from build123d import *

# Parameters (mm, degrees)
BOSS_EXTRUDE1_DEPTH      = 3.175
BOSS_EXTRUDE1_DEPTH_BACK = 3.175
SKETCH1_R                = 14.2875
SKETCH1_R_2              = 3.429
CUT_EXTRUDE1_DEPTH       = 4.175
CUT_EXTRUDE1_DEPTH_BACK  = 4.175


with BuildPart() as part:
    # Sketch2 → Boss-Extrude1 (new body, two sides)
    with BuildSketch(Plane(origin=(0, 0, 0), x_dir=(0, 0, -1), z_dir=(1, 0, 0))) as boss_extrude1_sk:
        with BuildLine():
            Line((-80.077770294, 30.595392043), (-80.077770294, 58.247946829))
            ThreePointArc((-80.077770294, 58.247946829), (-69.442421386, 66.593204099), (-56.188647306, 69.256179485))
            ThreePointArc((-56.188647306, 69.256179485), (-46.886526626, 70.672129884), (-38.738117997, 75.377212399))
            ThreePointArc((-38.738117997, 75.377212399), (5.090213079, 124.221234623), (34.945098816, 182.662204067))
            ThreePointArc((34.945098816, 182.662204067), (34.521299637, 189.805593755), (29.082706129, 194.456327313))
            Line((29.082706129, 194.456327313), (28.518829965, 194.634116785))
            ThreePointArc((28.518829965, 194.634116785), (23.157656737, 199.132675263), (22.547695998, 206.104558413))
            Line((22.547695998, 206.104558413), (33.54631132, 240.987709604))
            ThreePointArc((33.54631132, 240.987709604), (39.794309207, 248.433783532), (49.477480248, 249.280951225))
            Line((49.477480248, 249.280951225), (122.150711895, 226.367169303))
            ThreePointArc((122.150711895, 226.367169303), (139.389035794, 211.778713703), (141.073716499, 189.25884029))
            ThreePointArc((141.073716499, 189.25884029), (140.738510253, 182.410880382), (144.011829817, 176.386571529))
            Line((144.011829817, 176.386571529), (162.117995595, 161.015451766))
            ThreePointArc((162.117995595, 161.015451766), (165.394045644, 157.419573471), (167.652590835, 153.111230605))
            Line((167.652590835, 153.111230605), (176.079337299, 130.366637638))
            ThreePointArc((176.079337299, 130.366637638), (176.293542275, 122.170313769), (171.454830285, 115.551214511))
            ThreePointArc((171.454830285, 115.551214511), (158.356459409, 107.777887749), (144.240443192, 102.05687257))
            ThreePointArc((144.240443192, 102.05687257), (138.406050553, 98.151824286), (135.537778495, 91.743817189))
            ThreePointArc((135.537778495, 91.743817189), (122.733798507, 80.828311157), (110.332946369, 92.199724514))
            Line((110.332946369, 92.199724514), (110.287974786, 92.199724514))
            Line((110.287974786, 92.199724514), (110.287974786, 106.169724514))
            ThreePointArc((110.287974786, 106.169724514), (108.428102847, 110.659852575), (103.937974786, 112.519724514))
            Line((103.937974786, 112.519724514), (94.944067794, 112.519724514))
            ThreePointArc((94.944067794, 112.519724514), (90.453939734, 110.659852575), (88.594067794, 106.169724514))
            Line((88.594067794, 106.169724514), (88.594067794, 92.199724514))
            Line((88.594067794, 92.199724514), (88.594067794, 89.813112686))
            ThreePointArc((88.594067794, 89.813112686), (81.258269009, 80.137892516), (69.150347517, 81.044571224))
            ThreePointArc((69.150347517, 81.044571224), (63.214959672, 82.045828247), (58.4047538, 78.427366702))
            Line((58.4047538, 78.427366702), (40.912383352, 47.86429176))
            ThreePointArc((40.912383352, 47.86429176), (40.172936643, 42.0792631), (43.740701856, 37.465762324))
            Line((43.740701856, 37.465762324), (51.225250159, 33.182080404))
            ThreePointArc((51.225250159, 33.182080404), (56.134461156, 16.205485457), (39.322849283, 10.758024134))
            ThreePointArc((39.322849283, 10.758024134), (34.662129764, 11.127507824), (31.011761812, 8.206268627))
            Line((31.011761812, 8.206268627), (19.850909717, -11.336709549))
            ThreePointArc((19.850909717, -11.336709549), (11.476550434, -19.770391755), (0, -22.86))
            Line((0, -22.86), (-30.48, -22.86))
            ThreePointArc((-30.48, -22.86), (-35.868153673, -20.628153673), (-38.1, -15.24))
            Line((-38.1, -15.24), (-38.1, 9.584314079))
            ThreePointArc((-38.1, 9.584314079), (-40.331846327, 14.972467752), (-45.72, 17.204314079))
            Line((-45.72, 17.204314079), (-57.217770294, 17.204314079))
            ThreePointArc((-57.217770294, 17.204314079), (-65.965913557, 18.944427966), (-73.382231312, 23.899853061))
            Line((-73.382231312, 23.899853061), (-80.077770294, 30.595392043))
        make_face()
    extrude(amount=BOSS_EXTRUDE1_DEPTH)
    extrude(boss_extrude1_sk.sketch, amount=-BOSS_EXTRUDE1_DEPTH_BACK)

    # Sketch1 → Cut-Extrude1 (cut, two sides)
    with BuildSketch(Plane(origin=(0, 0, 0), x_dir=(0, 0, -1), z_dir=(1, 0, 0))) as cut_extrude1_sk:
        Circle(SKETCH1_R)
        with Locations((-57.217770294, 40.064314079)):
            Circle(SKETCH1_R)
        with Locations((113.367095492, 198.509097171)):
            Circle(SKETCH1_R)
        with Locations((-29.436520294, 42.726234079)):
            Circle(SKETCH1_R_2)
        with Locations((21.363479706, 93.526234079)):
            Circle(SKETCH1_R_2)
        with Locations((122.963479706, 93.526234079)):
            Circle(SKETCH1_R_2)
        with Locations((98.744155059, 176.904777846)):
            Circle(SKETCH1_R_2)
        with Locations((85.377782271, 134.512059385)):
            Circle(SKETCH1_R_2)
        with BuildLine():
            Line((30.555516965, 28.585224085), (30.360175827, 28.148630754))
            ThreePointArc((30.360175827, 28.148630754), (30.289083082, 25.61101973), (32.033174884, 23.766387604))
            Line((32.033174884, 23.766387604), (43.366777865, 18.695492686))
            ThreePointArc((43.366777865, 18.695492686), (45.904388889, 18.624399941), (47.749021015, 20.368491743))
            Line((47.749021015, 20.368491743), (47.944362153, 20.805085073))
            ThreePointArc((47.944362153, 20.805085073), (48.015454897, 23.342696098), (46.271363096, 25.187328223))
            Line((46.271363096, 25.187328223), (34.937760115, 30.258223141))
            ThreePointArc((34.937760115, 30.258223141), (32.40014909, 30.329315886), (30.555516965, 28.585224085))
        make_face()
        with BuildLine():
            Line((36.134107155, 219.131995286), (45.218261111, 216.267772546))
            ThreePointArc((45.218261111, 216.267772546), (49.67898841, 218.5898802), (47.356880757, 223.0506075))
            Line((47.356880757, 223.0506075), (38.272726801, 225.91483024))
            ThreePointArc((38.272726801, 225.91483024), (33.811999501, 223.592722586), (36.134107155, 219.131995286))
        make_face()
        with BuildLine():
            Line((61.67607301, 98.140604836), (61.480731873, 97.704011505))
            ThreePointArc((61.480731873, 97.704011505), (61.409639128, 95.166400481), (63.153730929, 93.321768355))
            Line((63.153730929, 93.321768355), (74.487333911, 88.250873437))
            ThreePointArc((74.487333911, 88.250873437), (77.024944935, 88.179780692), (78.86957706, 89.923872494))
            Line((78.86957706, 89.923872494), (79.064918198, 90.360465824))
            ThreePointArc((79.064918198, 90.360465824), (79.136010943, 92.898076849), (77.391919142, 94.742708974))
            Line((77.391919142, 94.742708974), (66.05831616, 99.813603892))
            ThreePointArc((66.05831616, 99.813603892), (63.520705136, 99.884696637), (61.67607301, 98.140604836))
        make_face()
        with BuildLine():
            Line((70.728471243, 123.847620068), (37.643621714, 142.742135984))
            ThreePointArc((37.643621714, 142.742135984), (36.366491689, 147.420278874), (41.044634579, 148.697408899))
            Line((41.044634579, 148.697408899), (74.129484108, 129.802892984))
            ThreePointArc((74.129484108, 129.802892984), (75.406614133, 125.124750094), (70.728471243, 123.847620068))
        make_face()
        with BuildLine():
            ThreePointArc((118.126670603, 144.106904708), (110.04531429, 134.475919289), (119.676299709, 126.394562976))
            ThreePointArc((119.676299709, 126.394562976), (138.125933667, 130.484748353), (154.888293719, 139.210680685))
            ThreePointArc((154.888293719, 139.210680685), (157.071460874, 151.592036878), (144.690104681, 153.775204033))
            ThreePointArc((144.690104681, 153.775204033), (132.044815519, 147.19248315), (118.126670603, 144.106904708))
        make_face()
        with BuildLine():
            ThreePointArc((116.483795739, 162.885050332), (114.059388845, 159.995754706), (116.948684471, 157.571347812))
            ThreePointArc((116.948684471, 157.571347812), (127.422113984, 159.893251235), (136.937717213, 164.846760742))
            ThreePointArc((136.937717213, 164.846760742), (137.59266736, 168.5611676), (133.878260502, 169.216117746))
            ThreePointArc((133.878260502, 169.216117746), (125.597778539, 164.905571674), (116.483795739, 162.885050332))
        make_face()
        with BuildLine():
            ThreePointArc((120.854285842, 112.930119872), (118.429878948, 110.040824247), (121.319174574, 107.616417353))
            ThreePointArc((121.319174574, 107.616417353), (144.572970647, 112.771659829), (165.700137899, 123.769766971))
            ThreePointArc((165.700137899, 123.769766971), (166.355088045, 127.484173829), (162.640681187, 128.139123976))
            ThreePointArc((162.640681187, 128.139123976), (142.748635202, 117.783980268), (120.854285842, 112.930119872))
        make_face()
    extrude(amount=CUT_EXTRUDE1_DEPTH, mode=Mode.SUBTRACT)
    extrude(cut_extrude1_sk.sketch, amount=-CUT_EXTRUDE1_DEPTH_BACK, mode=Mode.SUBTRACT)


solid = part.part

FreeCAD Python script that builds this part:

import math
import FreeCAD as App
import Part
import Sketcher
Q = App.Units.Quantity

doc = App.newDocument("Part")
params = doc.addObject("Spreadsheet::Sheet", "Params")
for row, (alias, value) in enumerate([
    ("sketch1_radius", "1 in"),
    ("sketch1_radius2", "0.9 in"),
    ("sketch1_radius3", "0.3 in"),
    ("sketch1_radius4", "0.3 in"),
    ("sketch1_radius5", "0.9 in"),
    ("pad1_length", "0.125 in"),
    ("pad1_length2", "0.125 in"),
    ("sketch2_diameter", "0.27 in"),
    ("sketch2_radius", "0.14 in"),
    ("sketch2_radius2", "0.35 in"),
    ("sketch2_radius3", "2.85 in"),
    ("sketch2_diameter2", "1.125 in"),
], start=1):
    params.set(f"A{row}", alias)
    params.set(f"B{row}", "=" + value)
    params.setAlias(f"B{row}", alias)

body = doc.addObject("PartDesign::Body", "Body")

# Sketch on YZ plane
sketch1 = body.newObject("Sketcher::SketchObject", "Sketch")
sketch1.AttachmentSupport = (doc.getObject("YZ_Plane"), [""])
sketch1.MapMode = "FlatFace"
sketch1.addGeometry([
    Part.LineSegment(App.Vector(58.247947, 80.07777, 0), App.Vector(30.595392, 80.07777, 0)),  # 0
    Part.LineSegment(App.Vector(30.595392, 80.07777, 0), App.Vector(23.899853, 73.382231, 0)),  # 1
    Part.ArcOfCircle(Part.Circle(App.Vector(40.064314, 57.21777, 0), App.Vector(0, 0, 1), 22.86), math.radians(135), math.radians(180)),  # 2
    Part.LineSegment(App.Vector(17.204314, 57.21777, 0), App.Vector(17.204314, 45.72, 0)),  # 3
    Part.ArcOfCircle(Part.Circle(App.Vector(9.584314, 45.72, 0), App.Vector(0, 0, 1), 7.62), math.radians(-90), math.radians(0)),  # 4
    Part.LineSegment(App.Vector(9.584314, 38.1, 0), App.Vector(-15.24, 38.1, 0)),  # 5
    Part.ArcOfCircle(Part.Circle(App.Vector(-15.24, 30.48, 0), App.Vector(0, 0, 1), 7.62), math.radians(90), math.radians(180)),  # 6
    Part.LineSegment(App.Vector(-22.86, 30.48, 0), App.Vector(-22.86, 0, 0)),  # 7
    Part.ArcOfCircle(Part.Circle(App.Vector(0, 0, 0), App.Vector(0, 0, 1), 22.86), math.radians(180), math.radians(240.269628)),  # 8
    Part.LineSegment(App.Vector(-11.33671, -19.85091, 0), App.Vector(8.206269, -31.011762, 0)),  # 9
    Part.ArcOfCircle(Part.Circle(App.Vector(5.057183, -36.525903, 0), App.Vector(0, 0, 1), 6.35), math.radians(-26.133485), math.radians(60.269628)),  # 10
    Part.ArcOfCircle(Part.Circle(App.Vector(22.159707, -44.916741, 0), App.Vector(0, 0, 1), 12.7), math.radians(153.866515), math.radians(330.215909)),  # 11
    Part.LineSegment(App.Vector(33.18208, -51.22525, 0), App.Vector(37.465762, -43.740702, 0)),  # 12
    Part.ArcOfCircle(Part.Circle(App.Vector(44.079186, -47.525807, 0), App.Vector(0, 0, 1), 7.62), math.radians(60.215909), math.radians(150.215909)),  # 13
    Part.LineSegment(App.Vector(47.864292, -40.912383, 0), App.Vector(78.427367, -58.404754, 0)),  # 14
    Part.ArcOfCircle(Part.Circle(App.Vector(74.642261, -65.018178, 0), App.Vector(0, 0, 1), 7.62), math.radians(-32.838949), math.radians(60.215909)),  # 15
    Part.ArcOfCircle(Part.Circle(App.Vector(91.715088, -76.037297, 0), App.Vector(0, 0, 1), 12.7), math.radians(147.161051), math.radians(261.386876)),  # 16
    Part.LineSegment(App.Vector(89.813113, -88.594068, 0), App.Vector(106.169725, -88.594068, 0)),  # 17
    Part.ArcOfCircle(Part.Circle(App.Vector(106.169725, -94.944068, 0), App.Vector(0, 0, 1), 6.35), math.radians(0), math.radians(90)),  # 18
    Part.LineSegment(App.Vector(112.519725, -94.944068, 0), App.Vector(112.519725, -103.937975, 0)),  # 19
    Part.ArcOfCircle(Part.Circle(App.Vector(106.169725, -103.937975, 0), App.Vector(0, 0, 1), 6.35), math.radians(-90), math.radians(0)),  # 20
    Part.LineSegment(App.Vector(106.169725, -110.287975, 0), App.Vector(92.199725, -110.287975, 0)),  # 21
    Part.LineSegment(App.Vector(92.199725, -110.287975, 0), App.Vector(92.199725, -110.332946, 0)),  # 22
    Part.ArcOfCircle(Part.Circle(App.Vector(93.526234, -122.96348, 0), App.Vector(0, 0, 1), 12.7), math.radians(95.995455), math.radians(261.932028)),  # 23
    Part.ArcOfCircle(Part.Circle(App.Vector(89.9614, -148.112077, 0), App.Vector(0, 0, 1), 12.7), math.radians(17.749325), math.radians(81.932028)),  # 24
    Part.ArcOfCircle(Part.Circle(App.Vector(198.509097, -113.367096, 0), App.Vector(0, 0, 1), 101.272875), math.radians(-162.250675), math.radians(-145)),  # 25
    Part.ArcOfCircle(Part.Circle(App.Vector(125.954445, -164.17041, 0), App.Vector(0, 0, 1), 12.7), math.radians(-145), math.radians(-69.67061)),  # 26
    Part.LineSegment(App.Vector(130.366638, -176.079337, 0), App.Vector(153.111231, -167.652591, 0)),  # 27
    Part.ArcOfCircle(Part.Circle(App.Vector(146.492942, -149.789199, 0), App.Vector(0, 0, 1), 19.05), math.radians(-69.67061), math.radians(-40.32939)),  # 28
    Part.LineSegment(App.Vector(161.015452, -162.117996, 0), App.Vector(176.386572, -144.01183, 0)),  # 29
    Part.ArcOfCircle(Part.Circle(App.Vector(185.236989, -153.120073, 0), App.Vector(0, 0, 1), 12.7), math.radians(71.537666), math.radians(134.177483)),  # 30
    Part.ArcOfCircle(Part.Circle(App.Vector(198.509097, -113.367095, 0), App.Vector(0, 0, 1), 29.21), math.radians(-108.462334), math.radians(-17.5)),  # 31
    Part.LineSegment(App.Vector(226.367169, -122.150712, 0), App.Vector(249.280951, -49.47748, 0)),  # 32
    Part.ArcOfCircle(Part.Circle(App.Vector(237.168746, -45.658517, 0), App.Vector(0, 0, 1), 12.7), math.radians(-17.5), math.radians(72.5)),  # 33
    Part.LineSegment(App.Vector(240.98771, -33.546311, 0), App.Vector(206.104558, -22.547696, 0)),  # 34
    Part.ArcOfCircle(Part.Circle(App.Vector(203.354905, -31.268484, 0), App.Vector(0, 0, 1), 9.144), math.radians(72.5), math.radians(162.5)),  # 35
    Part.LineSegment(App.Vector(194.634117, -28.51883, 0), App.Vector(194.456327, -29.082706, 0)),  # 36
    Part.ArcOfCircle(Part.Circle(App.Vector(185.73554, -26.333052, 0), App.Vector(0, 0, 1), 9.144), math.radians(-109.639689), math.radians(-17.5)),  # 37
    Part.ArcOfCircle(Part.Circle(App.Vector(268.051291, 204.330698, 0), App.Vector(0, 0, 1), 254.055512), math.radians(-139.322787), math.radians(-109.639689)),  # 38
    Part.ArcOfCircle(Part.Circle(App.Vector(94.64041, 55.293758, 0), App.Vector(0, 0, 1), 25.4), math.radians(177.980945), math.radians(220.677213)),  # 39
    Part.ArcOfCircle(Part.Circle(App.Vector(40.064314, 57.21777, 0), App.Vector(0, 0, 1), 29.21), math.radians(-2.019055), math.radians(51.50005)),  # 40
], False)
sketch1.addConstraint([
    Sketcher.Constraint("Coincident", 0, 2, 1, 1),
    Sketcher.Constraint("Coincident", 1, 2, 2, 1),
    Sketcher.Constraint("Coincident", 2, 2, 3, 1),
    Sketcher.Constraint("Coincident", 3, 2, 4, 2),
    Sketcher.Constraint("Coincident", 4, 1, 5, 1),
    Sketcher.Constraint("Coincident", 5, 2, 6, 1),
    Sketcher.Constraint("Coincident", 6, 2, 7, 1),
    Sketcher.Constraint("Coincident", 7, 2, 8, 1),
    Sketcher.Constraint("Coincident", 8, 2, 9, 1),
    Sketcher.Constraint("Coincident", 9, 2, 10, 2),
    Sketcher.Constraint("Coincident", 10, 1, 11, 1),
    Sketcher.Constraint("Coincident", 11, 2, 12, 1),
    Sketcher.Constraint("Coincident", 12, 2, 13, 2),
    Sketcher.Constraint("Coincident", 13, 1, 14, 1),
    Sketcher.Constraint("Coincident", 14, 2, 15, 2),
    Sketcher.Constraint("Coincident", 15, 1, 16, 1),
    Sketcher.Constraint("Coincident", 16, 2, 17, 1),
    Sketcher.Constraint("Coincident", 17, 2, 18, 2),
    Sketcher.Constraint("Coincident", 18, 1, 19, 1),
    Sketcher.Constraint("Coincident", 19, 2, 20, 2),
    Sketcher.Constraint("Coincident", 20, 1, 21, 1),
    Sketcher.Constraint("Coincident", 21, 2, 22, 1),
    Sketcher.Constraint("Coincident", 22, 2, 23, 1),
    Sketcher.Constraint("Coincident", 23, 2, 24, 2),
    Sketcher.Constraint("Coincident", 24, 1, 25, 1),
    Sketcher.Constraint("Coincident", 25, 2, 26, 1),
    Sketcher.Constraint("Coincident", 26, 2, 27, 1),
    Sketcher.Constraint("Coincident", 27, 2, 28, 1),
    Sketcher.Constraint("Coincident", 28, 2, 29, 1),
    Sketcher.Constraint("Coincident", 29, 2, 30, 2),
    Sketcher.Constraint("Coincident", 30, 1, 31, 1),
    Sketcher.Constraint("Coincident", 31, 2, 32, 1),
    Sketcher.Constraint("Coincident", 32, 2, 33, 1),
    Sketcher.Constraint("Coincident", 33, 2, 34, 1),
    Sketcher.Constraint("Coincident", 34, 2, 35, 1),
    Sketcher.Constraint("Coincident", 35, 2, 36, 1),
    Sketcher.Constraint("Coincident", 36, 2, 37, 2),
    Sketcher.Constraint("Coincident", 37, 1, 38, 2),
    Sketcher.Constraint("Coincident", 38, 1, 39, 2),
    Sketcher.Constraint("Coincident", 39, 1, 40, 1),
    Sketcher.Constraint("Coincident", 40, 2, 0, 1),
    Sketcher.Constraint("Horizontal", 0),
    Sketcher.Constraint("Vertical", 3),
    Sketcher.Constraint("Horizontal", 5),
    Sketcher.Constraint("Vertical", 7),
    Sketcher.Constraint("Horizontal", 17),
    Sketcher.Constraint("Vertical", 19),
    Sketcher.Constraint("Horizontal", 21),
    Sketcher.Constraint("Vertical", 22),
    Sketcher.Constraint("Coincident", 8, 3, -1, 1),
    Sketcher.Constraint("Coincident", 31, 3, 25, 3),
    Sketcher.Constraint("Coincident", 40, 3, 2, 3),
    Sketcher.Constraint("PointOnObject", 7, 2, -1),
    Sketcher.Constraint("Radius", 39, Q("1 in")),
    Sketcher.Constraint("Radius", 2, Q("0.9 in")),
    Sketcher.Constraint("Radius", 4, Q("0.3 in")),
    Sketcher.Constraint("Radius", 6, Q("0.3 in")),
    Sketcher.Constraint("Radius", 8, Q("0.9 in")),
    Sketcher.Constraint("Radius", 11, Q("0.5 in")),
    Sketcher.Constraint("Radius", 13, Q("0.3 in")),
    Sketcher.Constraint("Radius", 15, Q("0.3 in")),
    Sketcher.Constraint("Radius", 16, Q("0.5 in")),
    Sketcher.Constraint("Radius", 23, Q("0.5 in")),
    Sketcher.Constraint("Radius", 24, Q("0.5 in")),
    Sketcher.Constraint("Radius", 26, Q("0.5 in")),
    Sketcher.Constraint("Radius", 30, Q("0.5 in")),
    Sketcher.Constraint("Radius", 33, Q("0.5 in")),
    Sketcher.Constraint("Radius", 10, Q("0.25 in")),
    Sketcher.Constraint("Radius", 18, Q("0.25 in")),
    Sketcher.Constraint("Radius", 20, Q("0.25 in")),
    Sketcher.Constraint("Radius", 28, Q("0.75 in")),
    Sketcher.Constraint("Radius", 31, Q("1.15 in")),
    Sketcher.Constraint("Radius", 35, Q("0.36 in")),
    Sketcher.Constraint("Radius", 37, Q("0.36 in")),
    Sketcher.Constraint("Radius", 40, Q("1.15 in")),
    Sketcher.Constraint("Distance", 32, Q("3 in")),
    Sketcher.Constraint("DistanceY", 7, 2, 7, 1, Q("1.2 in")),
    Sketcher.Constraint("DistanceX", 21, 2, 21, 1, Q("0.55 in")),
    Sketcher.Constraint("DistanceY", -1, 1, 4, 3, Q("1.8 in")),
    Sketcher.Constraint("DistanceY", -1, 1, 3, 2, Q("1.8 in")),
    Sketcher.Constraint("DistanceX", 5, 2, -1, 1, Q("0.6 in")),
    Sketcher.Constraint("Distance", 34, Q("1.44 in")),
    Sketcher.Constraint("Radius", 38, Q("254.055512 mm")),
    Sketcher.Constraint("Radius", 25, Q("101.272875 mm")),
    Sketcher.Constraint("DistanceX", 17, 1, 17, 2, Q("16.356612 mm")),
    Sketcher.Constraint("DistanceY", 3, 2, 3, 1, Q("11.49777 mm")),
    Sketcher.Constraint("DistanceY", 22, 2, 22, 1, Q("0.044972 mm")),
    Sketcher.Constraint("DistanceX", -1, 1, 24, 3, Q("89.9614 mm")),
    Sketcher.Constraint("DistanceY", 28, 3, -1, 1, Q("149.789199 mm")),
    Sketcher.Constraint("DistanceY", 12, 2, -1, 1, Q("43.740702 mm")),
    Sketcher.Constraint("DistanceY", 37, 1, -1, 1, Q("34.945099 mm")),
    Sketcher.Constraint("Distance", 9, Q("22.505391 mm")),
    Sketcher.Constraint("Distance", 12, Q("8.623711 mm")),
    Sketcher.Constraint("Distance", 36, Q("0.591241 mm")),
    Sketcher.Constraint("DistanceX", 0, 2, 0, 1, Q("27.652555 mm")),
    Sketcher.Constraint("DistanceX", 5, 2, 5, 1, Q("24.824314 mm")),
    Sketcher.Constraint("DistanceY", 19, 2, 19, 1, Q("8.993907 mm")),
    Sketcher.Constraint("DistanceY", -1, 1, 2, 3, Q("57.21777 mm")),
    Sketcher.Constraint("DistanceY", 11, 3, -1, 1, Q("44.916741 mm")),
    Sketcher.Constraint("DistanceX", -1, 1, 15, 3, Q("74.642261 mm")),
    Sketcher.Constraint("DistanceY", 23, 3, -1, 1, Q("122.96348 mm")),
    Sketcher.Constraint("DistanceY", 26, 3, -1, 1, Q("164.17041 mm")),
    Sketcher.Constraint("DistanceX", -1, 1, 30, 3, Q("185.236989 mm")),
    Sketcher.Constraint("DistanceX", -1, 1, 37, 3, Q("185.73554 mm")),
    Sketcher.Constraint("DistanceX", -1, 1, 38, 3, Q("268.051291 mm")),
    Sketcher.Constraint("DistanceX", -1, 1, 39, 3, Q("94.64041 mm")),
    Sketcher.Constraint("DistanceY", -1, 1, 0, 2, Q("80.07777 mm")),
    Sketcher.Constraint("DistanceY", -1, 1, 1, 2, Q("73.382231 mm")),
    Sketcher.Constraint("DistanceX", 8, 2, -1, 1, Q("11.33671 mm")),
    Sketcher.Constraint("DistanceX", -1, 1, 9, 2, Q("8.206269 mm")),
    Sketcher.Constraint("DistanceY", 10, 1, -1, 1, Q("39.322849 mm")),
    Sketcher.Constraint("DistanceX", -1, 1, 11, 2, Q("33.18208 mm")),
    Sketcher.Constraint("DistanceY", 11, 2, -1, 1, Q("51.22525 mm")),
    Sketcher.Constraint("DistanceX", -1, 1, 13, 1, Q("47.864292 mm")),
    Sketcher.Constraint("DistanceX", -1, 1, 15, 1, Q("81.044571 mm")),
    Sketcher.Constraint("DistanceY", 23, 2, -1, 1, Q("135.537778 mm")),
    Sketcher.Constraint("DistanceY", 25, 2, -1, 1, Q("171.45483 mm")),
    Sketcher.Constraint("DistanceX", -1, 1, 27, 2, Q("153.111231 mm")),
    Sketcher.Constraint("DistanceY", 27, 2, -1, 1, Q("167.652591 mm")),
    Sketcher.Constraint("DistanceX", -1, 1, 28, 2, Q("161.015452 mm")),
    Sketcher.Constraint("DistanceX", -1, 1, 29, 2, Q("176.386572 mm")),
    Sketcher.Constraint("DistanceY", 29, 2, -1, 1, Q("144.01183 mm")),
    Sketcher.Constraint("DistanceX", -1, 1, 30, 1, Q("189.25884 mm")),
    Sketcher.Constraint("DistanceX", -1, 1, 31, 2, Q("226.367169 mm")),
    Sketcher.Constraint("DistanceY", 31, 2, -1, 1, Q("122.150712 mm")),
    Sketcher.Constraint("DistanceX", -1, 1, 32, 2, Q("249.280951 mm")),
    Sketcher.Constraint("DistanceX", -1, 1, 33, 2, Q("240.98771 mm")),
    Sketcher.Constraint("DistanceY", 33, 2, -1, 1, Q("33.546311 mm")),
    Sketcher.Constraint("DistanceX", -1, 1, 34, 2, Q("206.104558 mm")),
    Sketcher.Constraint("DistanceY", 35, 2, -1, 1, Q("28.51883 mm")),
    Sketcher.Constraint("DistanceX", -1, 1, 39, 1, Q("69.256179 mm")),
    Sketcher.Constraint("Distance", 14, Q("35.214835 mm")),
    Sketcher.Constraint("Distance", 27, Q("24.255444 mm")),
    Sketcher.Constraint("DistanceX", -1, 1, 2, 3, Q("40.064314 mm")),
    Sketcher.Constraint("DistanceX", -1, 1, 13, 3, Q("44.079186 mm")),
    Sketcher.Constraint("DistanceY", 15, 3, -1, 1, Q("65.018178 mm")),
    Sketcher.Constraint("DistanceX", -1, 1, 16, 3, Q("91.715088 mm")),
    Sketcher.Constraint("DistanceX", -1, 1, 18, 3, Q("106.169725 mm")),
    Sketcher.Constraint("DistanceY", 18, 3, -1, 1, Q("94.944068 mm")),
    Sketcher.Constraint("DistanceY", 20, 3, -1, 1, Q("103.937975 mm")),
    Sketcher.Constraint("DistanceX", -1, 1, 35, 3, Q("203.354905 mm")),
    Sketcher.Constraint("DistanceY", 18, 1, -1, 1, Q("94.944068 mm")),
    Sketcher.Constraint("DistanceX", -1, 1, 24, 1, Q("102.056873 mm")),
    Sketcher.Constraint("DistanceX", -1, 1, 38, 1, Q("75.377212 mm")),
])
sketch1.setExpression("Constraints[53]", "Params.sketch1_radius")
sketch1.setExpression("Constraints[54]", "Params.sketch1_radius2")
sketch1.setExpression("Constraints[55]", "Params.sketch1_radius3")
sketch1.setExpression("Constraints[56]", "Params.sketch1_radius4")
sketch1.setExpression("Constraints[57]", "Params.sketch1_radius5")
pad1 = body.newObject("PartDesign::Pad", "Pad")
pad1.Profile = sketch1
pad1.Type = "TwoLengths"
pad1.setExpression("Length", "Params.pad1_length")
pad1.setExpression("Length2", "Params.pad1_length2")

# Sketch on YZ plane
sketch2 = body.newObject("Sketcher::SketchObject", "Sketch001")
sketch2.AttachmentSupport = (doc.getObject("YZ_Plane"), [""])
sketch2.MapMode = "FlatFace"
sketch2.addGeometry([
    Part.Circle(App.Vector(0, 0, 0), App.Vector(0, 0, 1), 14.29),  # 0
    Part.Circle(App.Vector(40.06, 57.22, 0), App.Vector(0, 0, 1), 14.29),  # 1
    Part.Circle(App.Vector(198.51, -113.37, 0), App.Vector(0, 0, 1), 14.29),  # 2
    Part.Circle(App.Vector(42.73, 29.44, 0), App.Vector(0, 0, 1), 3.43),  # 3
    Part.Circle(App.Vector(93.53, -21.36, 0), App.Vector(0, 0, 1), 3.43),  # 4
    Part.Circle(App.Vector(93.53, -122.96, 0), App.Vector(0, 0, 1), 3.43),  # 5
    Part.Circle(App.Vector(176.9, -98.74, 0), App.Vector(0, 0, 1), 3.43),  # 6
    Part.Circle(App.Vector(134.51, -85.38, 0), App.Vector(0, 0, 1), 3.43),  # 7
    Part.LineSegment(App.Vector(28.59, -30.56, 0), App.Vector(28.15, -30.36, 0)),  # 8
    Part.ArcOfCircle(Part.Circle(App.Vector(26.79, -33.39, 0), App.Vector(0, 0, 1), 3.32), math.radians(66), math.radians(156)),  # 9
    Part.LineSegment(App.Vector(23.77, -32.03, 0), App.Vector(18.7, -43.37, 0)),  # 10
    Part.ArcOfCircle(Part.Circle(App.Vector(21.72, -44.72, 0), App.Vector(0, 0, 1), 3.32), math.radians(156), math.radians(246)),  # 11
    Part.LineSegment(App.Vector(20.37, -47.75, 0), App.Vector(20.81, -47.94, 0)),  # 12
    Part.ArcOfCircle(Part.Circle(App.Vector(22.16, -44.92, 0), App.Vector(0, 0, 1), 3.32), math.radians(-114), math.radians(-24)),  # 13
    Part.LineSegment(App.Vector(25.19, -46.27, 0), App.Vector(30.26, -34.94, 0)),  # 14
    Part.ArcOfCircle(Part.Circle(App.Vector(27.23, -33.58, 0), App.Vector(0, 0, 1), 3.32), math.radians(-24), math.radians(66)),  # 15
    Part.LineSegment(App.Vector(219.13, -36.13, 0), App.Vector(216.27, -45.22, 0)),  # 16
    Part.ArcOfCircle(Part.Circle(App.Vector(219.66, -46.29, 0), App.Vector(0, 0, 1), 3.56), math.radians(163), math.radians(342)),  # 17
    Part.LineSegment(App.Vector(223.05, -47.36, 0), App.Vector(225.91, -38.27, 0)),  # 18
    Part.ArcOfCircle(Part.Circle(App.Vector(222.52, -37.2, 0), App.Vector(0, 0, 1), 3.56), math.radians(-17), math.radians(163)),  # 19
    Part.LineSegment(App.Vector(98.14, -61.68, 0), App.Vector(97.7, -61.48, 0)),  # 20
    Part.ArcOfCircle(Part.Circle(App.Vector(96.35, -64.51, 0), App.Vector(0, 0, 1), 3.32), math.radians(66), math.radians(156)),  # 21
    Part.LineSegment(App.Vector(93.32, -63.15, 0), App.Vector(88.25, -74.49, 0)),  # 22
    Part.ArcOfCircle(Part.Circle(App.Vector(91.28, -75.84, 0), App.Vector(0, 0, 1), 3.32), math.radians(156), math.radians(246)),  # 23
    Part.LineSegment(App.Vector(89.92, -78.87, 0), App.Vector(90.36, -79.06, 0)),  # 24
    Part.ArcOfCircle(Part.Circle(App.Vector(91.72, -76.04, 0), App.Vector(0, 0, 1), 3.32), math.radians(-114), math.radians(-24)),  # 25
    Part.LineSegment(App.Vector(94.74, -77.39, 0), App.Vector(99.81, -66.06, 0)),  # 26
    Part.ArcOfCircle(Part.Circle(App.Vector(96.79, -64.7, 0), App.Vector(0, 0, 1), 3.32), math.radians(-24), math.radians(66)),  # 27
    Part.LineSegment(App.Vector(142.74, -37.64, 0), App.Vector(123.85, -70.73, 0)),  # 28
    Part.ArcOfCircle(Part.Circle(App.Vector(126.83, -72.43, 0), App.Vector(0, 0, 1), 3.43), math.radians(150), math.radians(330)),  # 29
    Part.LineSegment(App.Vector(129.8, -74.13, 0), App.Vector(148.7, -41.04, 0)),  # 30
    Part.ArcOfCircle(Part.Circle(App.Vector(145.72, -39.34, 0), App.Vector(0, 0, 1), 3.43), math.radians(-30), math.radians(150)),  # 31
    Part.ArcOfCircle(Part.Circle(App.Vector(135.25, -118.9, 0), App.Vector(0, 0, 1), 8.89), math.radians(5), math.radians(185)),  # 32
    Part.ArcOfCircle(Part.Circle(App.Vector(198.51, -113.37, 0), App.Vector(0, 0, 1), 72.39), math.radians(-175), math.radians(-145)),  # 33
    Part.ArcOfCircle(Part.Circle(App.Vector(146.49, -149.79, 0), App.Vector(0, 0, 1), 8.89), math.radians(-145), math.radians(35)),  # 34
    Part.ArcOfCircle(Part.Circle(App.Vector(198.51, -113.37, 0), App.Vector(0, 0, 1), 54.61), math.radians(-175), math.radians(-145)),  # 35
    Part.ArcOfCircle(Part.Circle(App.Vector(160.23, -116.72, 0), App.Vector(0, 0, 1), 2.67), math.radians(5), math.radians(185)),  # 36
    Part.ArcOfCircle(Part.Circle(App.Vector(198.51, -113.37, 0), App.Vector(0, 0, 1), 41.09), math.radians(-175), math.radians(-145)),  # 37
    Part.ArcOfCircle(Part.Circle(App.Vector(167.03, -135.41, 0), App.Vector(0, 0, 1), 2.67), math.radians(-145), math.radians(35)),  # 38
    Part.ArcOfCircle(Part.Circle(App.Vector(198.51, -113.37, 0), App.Vector(0, 0, 1), 35.76), math.radians(-175), math.radians(-145)),  # 39
    Part.ArcOfCircle(Part.Circle(App.Vector(110.27, -121.09, 0), App.Vector(0, 0, 1), 2.67), math.radians(5), math.radians(185)),  # 40
    Part.ArcOfCircle(Part.Circle(App.Vector(198.51, -113.37, 0), App.Vector(0, 0, 1), 91.24), math.radians(-175), math.radians(-145)),  # 41
    Part.ArcOfCircle(Part.Circle(App.Vector(125.95, -164.17, 0), App.Vector(0, 0, 1), 2.67), math.radians(-145), math.radians(35)),  # 42
    Part.ArcOfCircle(Part.Circle(App.Vector(198.51, -113.37, 0), App.Vector(0, 0, 1), 85.91), math.radians(-175), math.radians(-145)),  # 43
], False)
sketch2.addConstraint([
    Sketcher.Constraint("Tangent", 8, 2, 9, 1),
    Sketcher.Constraint("Tangent", 9, 2, 10, 1),
    Sketcher.Constraint("Tangent", 10, 2, 11, 1),
    Sketcher.Constraint("Tangent", 11, 2, 12, 1),
    Sketcher.Constraint("Tangent", 12, 2, 13, 1),
    Sketcher.Constraint("Tangent", 13, 2, 14, 1),
    Sketcher.Constraint("Tangent", 14, 2, 15, 1),
    Sketcher.Constraint("Tangent", 15, 2, 8, 1),
    Sketcher.Constraint("Tangent", 16, 2, 17, 1),
    Sketcher.Constraint("Tangent", 17, 2, 18, 1),
    Sketcher.Constraint("Tangent", 18, 2, 19, 1),
    Sketcher.Constraint("Tangent", 19, 2, 16, 1),
    Sketcher.Constraint("Tangent", 20, 2, 21, 1),
    Sketcher.Constraint("Tangent", 21, 2, 22, 1),
    Sketcher.Constraint("Tangent", 22, 2, 23, 1),
    Sketcher.Constraint("Tangent", 23, 2, 24, 1),
    Sketcher.Constraint("Tangent", 24, 2, 25, 1),
    Sketcher.Constraint("Tangent", 25, 2, 26, 1),
    Sketcher.Constraint("Tangent", 26, 2, 27, 1),
    Sketcher.Constraint("Tangent", 27, 2, 20, 1),
    Sketcher.Constraint("Tangent", 28, 2, 29, 1),
    Sketcher.Constraint("Tangent", 29, 2, 30, 1),
    Sketcher.Constraint("Tangent", 30, 2, 31, 1),
    Sketcher.Constraint("Tangent", 31, 2, 28, 1),
    Sketcher.Constraint("Tangent", 32, 2, 33, 1),
    Sketcher.Constraint("Tangent", 33, 2, 34, 1),
    Sketcher.Constraint("Tangent", 34, 2, 35, 2),
    Sketcher.Constraint("Tangent", 35, 1, 32, 1),
    Sketcher.Constraint("Tangent", 36, 2, 37, 1),
    Sketcher.Constraint("Tangent", 37, 2, 38, 1),
    Sketcher.Constraint("Tangent", 38, 2, 39, 2),
    Sketcher.Constraint("Tangent", 39, 1, 36, 1),
    Sketcher.Constraint("Tangent", 40, 2, 41, 1),
    Sketcher.Constraint("Tangent", 41, 2, 42, 1),
    Sketcher.Constraint("Tangent", 42, 2, 43, 2),
    Sketcher.Constraint("Tangent", 43, 1, 40, 1),
    Sketcher.Constraint("Coincident", 0, 3, -1, 1),
    Sketcher.Constraint("Coincident", 33, 3, 2, 3),
    Sketcher.Constraint("Coincident", 35, 3, 2, 3),
    Sketcher.Constraint("Coincident", 37, 3, 2, 3),
    Sketcher.Constraint("Coincident", 39, 3, 2, 3),
    Sketcher.Constraint("Coincident", 41, 3, 2, 3),
    Sketcher.Constraint("Coincident", 43, 3, 2, 3),
    Sketcher.Constraint("Equal", 0, 1),
    Sketcher.Constraint("Equal", 1, 2),
    Sketcher.Constraint("Equal", 3, 4),
    Sketcher.Constraint("Equal", 4, 5),
    Sketcher.Constraint("Equal", 5, 6),
    Sketcher.Constraint("Equal", 6, 7),
    Sketcher.Constraint("Equal", 9, 11),
    Sketcher.Constraint("Equal", 11, 13),
    Sketcher.Constraint("Equal", 13, 15),
    Sketcher.Constraint("Equal", 17, 19),
    Sketcher.Constraint("Equal", 15, 21),
    Sketcher.Constraint("Equal", 21, 23),
    Sketcher.Constraint("Equal", 23, 25),
    Sketcher.Constraint("Equal", 25, 27),
    Sketcher.Constraint("Equal", 7, 29),
    Sketcher.Constraint("Equal", 29, 31),
    Sketcher.Constraint("Equal", 38, 40),
    Sketcher.Constraint("Perpendicular", 8, 10),
    Sketcher.Constraint("Perpendicular", 10, 12),
    Sketcher.Constraint("Perpendicular", 12, 14),
    Sketcher.Constraint("Perpendicular", 14, 20),
    Sketcher.Constraint("Perpendicular", 20, 22),
    Sketcher.Constraint("Perpendicular", 22, 24),
    Sketcher.Constraint("Perpendicular", 24, 26),
    Sketcher.Constraint("Vertical", 4, 3, 5, 3),
    Sketcher.Constraint("Equal", 12, 20),
    Sketcher.Constraint("Equal", 14, 22),
    Sketcher.Constraint("Diameter", 3, Q("0.27 in")),
    Sketcher.Constraint("Radius", 17, Q("0.14 in")),
    Sketcher.Constraint("Radius", 32, Q("0.35 in")),
    Sketcher.Constraint("Radius", 33, Q("2.85 in")),
    Sketcher.Constraint("Diameter", 0, Q("1.125 in")),
    Sketcher.Constraint("Radius", 36, Q("0.105 in")),
    Sketcher.Constraint("Distance", 28, Q("1.5 in")),
    Sketcher.Constraint("Angle", 16, Q("-107.5 deg")),
    Sketcher.Constraint("Distance", 16, Q("0.375 in")),
    Sketcher.Constraint("Radius", 9, Q("3.316849 mm")),
    Sketcher.Constraint("DistanceX", -1, 1, 35, 1, Q("5.6735002 in")),
    Sketcher.Constraint("Radius", 37, Q("41.094125 mm")),
    Sketcher.Constraint("Radius", 41, Q("91.239875 mm")),
    Sketcher.Constraint("Distance", 8, Q("0.478301 mm")),
    Sketcher.Constraint("Distance", 10, Q("12.416301 mm")),
    Sketcher.Constraint("DistanceY", 11, 3, -1, 1, Q("44.7214 mm")),
    Sketcher.Constraint("DistanceY", 34, 3, -1, 1, Q("149.789199 mm")),
    Sketcher.Constraint("DistanceX", -1, 1, 36, 3, Q("160.228199 mm")),
    Sketcher.Constraint("DistanceY", 32, 2, -1, 1, Q("119.6763 mm")),
    Sketcher.Constraint("DistanceY", -1, 1, 1, 3, Q("57.21777 mm")),
    Sketcher.Constraint("DistanceY", -1, 1, 3, 3, Q("29.43652 mm")),
    Sketcher.Constraint("DistanceY", 4, 3, -1, 1, Q("21.36348 mm")),
    Sketcher.Constraint("DistanceY", 5, 3, -1, 1, Q("122.96348 mm")),
    Sketcher.Constraint("DistanceX", -1, 1, 7, 3, Q("134.512059 mm")),
    Sketcher.Constraint("DistanceX", -1, 1, 9, 3, Q("26.794009 mm")),
    Sketcher.Constraint("DistanceY", 13, 3, -1, 1, Q("44.916741 mm")),
    Sketcher.Constraint("DistanceX", -1, 1, 17, 3, Q("219.65919 mm")),
    Sketcher.Constraint("DistanceY", 17, 3, -1, 1, Q("46.287571 mm")),
    Sketcher.Constraint("DistanceX", -1, 1, 21, 3, Q("96.349389 mm")),
    Sketcher.Constraint("DistanceY", 31, 3, -1, 1, Q("39.344128 mm")),
    Sketcher.Constraint("DistanceY", 36, 3, -1, 1, Q("116.71624 mm")),
    Sketcher.Constraint("DistanceX", -1, 1, 38, 3, Q("167.031439 mm")),
    Sketcher.Constraint("DistanceX", -1, 1, 40, 3, Q("110.273269 mm")),
    Sketcher.Constraint("DistanceY", 42, 3, -1, 1, Q("164.17041 mm")),
    Sketcher.Constraint("DistanceY", 20, 2, -1, 1, Q("61.480732 mm")),
    Sketcher.Constraint("DistanceX", -1, 1, 28, 2, Q("123.84762 mm")),
    Sketcher.Constraint("DistanceY", 28, 2, -1, 1, Q("70.728471 mm")),
    Sketcher.Constraint("DistanceX", -1, 1, 1, 3, Q("40.064314 mm")),
    Sketcher.Constraint("DistanceX", -1, 1, 3, 3, Q("42.726234 mm")),
    Sketcher.Constraint("DistanceX", -1, 1, 4, 3, Q("93.526234 mm")),
    Sketcher.Constraint("DistanceX", -1, 1, 6, 3, Q("176.904778 mm")),
    Sketcher.Constraint("DistanceY", 6, 3, -1, 1, Q("98.744155 mm")),
    Sketcher.Constraint("DistanceY", 7, 3, -1, 1, Q("85.377782 mm")),
])
sketch2.setExpression("Constraints[70]", "Params.sketch2_diameter")
sketch2.setExpression("Constraints[71]", "Params.sketch2_radius")
sketch2.setExpression("Constraints[72]", "Params.sketch2_radius2")
sketch2.setExpression("Constraints[73]", "Params.sketch2_radius3")
sketch2.setExpression("Constraints[74]", "Params.sketch2_diameter2")
pocket1 = body.newObject("PartDesign::Pocket", "Pocket")
pocket1.Profile = sketch2
pocket1.Type = "ThroughAll"
pocket1.Midplane = True

doc.recompute()
